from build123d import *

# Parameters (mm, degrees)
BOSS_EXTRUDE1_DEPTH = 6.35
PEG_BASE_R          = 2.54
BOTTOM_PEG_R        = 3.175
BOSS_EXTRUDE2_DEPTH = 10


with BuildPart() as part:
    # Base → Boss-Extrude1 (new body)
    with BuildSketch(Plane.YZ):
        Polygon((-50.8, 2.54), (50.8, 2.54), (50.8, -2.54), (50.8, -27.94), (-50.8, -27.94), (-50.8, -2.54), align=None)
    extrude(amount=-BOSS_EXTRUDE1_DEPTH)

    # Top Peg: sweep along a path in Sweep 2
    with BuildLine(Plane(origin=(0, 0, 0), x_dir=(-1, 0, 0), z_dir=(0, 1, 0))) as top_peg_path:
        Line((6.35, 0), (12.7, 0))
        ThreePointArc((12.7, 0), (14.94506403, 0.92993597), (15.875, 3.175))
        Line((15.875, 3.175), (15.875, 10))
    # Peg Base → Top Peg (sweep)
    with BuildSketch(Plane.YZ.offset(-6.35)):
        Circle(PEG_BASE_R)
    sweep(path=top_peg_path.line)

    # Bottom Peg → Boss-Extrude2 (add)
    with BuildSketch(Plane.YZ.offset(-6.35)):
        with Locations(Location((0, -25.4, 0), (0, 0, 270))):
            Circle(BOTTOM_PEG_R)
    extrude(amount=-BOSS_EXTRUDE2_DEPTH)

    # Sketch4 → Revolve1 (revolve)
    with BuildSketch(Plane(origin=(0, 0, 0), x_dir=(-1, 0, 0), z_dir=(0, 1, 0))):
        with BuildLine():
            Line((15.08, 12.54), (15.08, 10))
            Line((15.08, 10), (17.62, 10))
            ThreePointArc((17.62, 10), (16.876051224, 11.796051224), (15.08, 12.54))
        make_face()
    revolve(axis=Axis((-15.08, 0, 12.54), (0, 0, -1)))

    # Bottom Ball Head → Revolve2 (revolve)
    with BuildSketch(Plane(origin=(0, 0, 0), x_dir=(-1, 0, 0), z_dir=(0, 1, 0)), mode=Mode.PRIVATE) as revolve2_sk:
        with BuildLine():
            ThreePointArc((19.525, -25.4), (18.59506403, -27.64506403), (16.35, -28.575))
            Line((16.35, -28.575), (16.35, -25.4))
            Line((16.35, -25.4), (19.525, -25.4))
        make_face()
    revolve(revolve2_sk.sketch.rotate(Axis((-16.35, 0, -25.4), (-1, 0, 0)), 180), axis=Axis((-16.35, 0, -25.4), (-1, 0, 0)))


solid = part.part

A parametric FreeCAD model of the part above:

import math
import FreeCAD as App
import Part
import Sketcher

V = App.Vector
Q = App.Units.Quantity


def add_polygon(sketch, points):
    """Adds a closed chain of lines whose ends are joined by coincident constraints."""
    first, n = sketch.GeometryCount, len(points)
    for a, b in zip(points, points[1:] + points[:1]):
        sketch.addGeometry(Part.LineSegment(App.Vector(*a, 0), App.Vector(*b, 0)), False)
    for i in range(n):
        sketch.addConstraint(Sketcher.Constraint("Coincident", first + i, 2, first + (i + 1) % n, 1))

doc = App.newDocument("Part")
params = doc.addObject("Spreadsheet::Sheet", "Params")
for row, (alias, value) in enumerate([
    ("sketch1_width", "4 in"),
    ("sketch1_height", "1.2 in"),
    ("pad1_length", "0.25 in"),
    ("sketch2_diameter", "0.2 in"),
    ("sketch3_radius", "0.125 in"),
    ("sketch3_width", "0.25 in"),
    ("sketch4_diameter", "0.25 in"),
    ("pad2_length", "10 mm"),
    ("sketch5_radius", "0.1 in"),
    ("revolution_angle", "360 deg"),
    ("sketch6_radius", "0.125 in"),
    ("revolution2_angle", "360 deg"),
], start=1):
    params.set(f"A{row}", alias)
    params.set(f"B{row}", "=" + value)
    params.setAlias(f"B{row}", alias)

body = doc.addObject("PartDesign::Body", "Body")

sketch1 = body.newObject("Sketcher::SketchObject", "Sketch")
sketch1.AttachmentSupport = (doc.getObject("YZ_Plane"), [""])
sketch1.MapMode = "FlatFace"
add_polygon(sketch1, [(51, 3), (-51, 3), (-51, -28), (51, -28)])
sketch1.addConstraint([
    Sketcher.Constraint("Horizontal", 0),
    Sketcher.Constraint("Vertical", 1),
    Sketcher.Constraint("Horizontal", 2),
    Sketcher.Constraint("Vertical", 3),
    Sketcher.Constraint("DistanceX", 0, 2, 0, 1, Q("4 in")),
    Sketcher.Constraint("DistanceY", 1, 2, 1, 1, Q("1.2 in")),
    Sketcher.Constraint("DistanceX", 0, 2, -1, 1, Q("2 in")),
    Sketcher.Constraint("DistanceY", -1, 1, 0, 2, Q("0.1 in")),
])
sketch1.setExpression("Constraints[8]", "Params.sketch1_width")
sketch1.setExpression("Constraints[9]", "Params.sketch1_height")
pad1 = body.newObject("PartDesign::Pad", "Pad")
pad1.Profile = sketch1
pad1.setExpression("Length", "Params.pad1_length")
pad1.Reversed = True

sketch2 = body.newObject("Sketcher::SketchObject", "Sketch001")
sketch2.AttachmentSupport = (doc.getObject("YZ_Plane"), [""])
sketch2.MapMode = "FlatFace"
sketch2.AttachmentOffset = App.Placement(V(0, 0, -0.25 * 25.4), App.Rotation())
sketch2.addGeometry(Part.Circle(V(0, 0, 0), V(0, 0, 1), 2.5), False)
sketch2.addConstraint([
    Sketcher.Constraint("Coincident", 0, 3, -1, 1),
    Sketcher.Constraint("Diameter", 0, Q("0.2 in")),
])
sketch2.setExpression("Constraints[1]", "Params.sketch2_diameter")

sketch3 = body.newObject("Sketcher::SketchObject", "Sketch002")
sketch3.AttachmentSupport = (doc.getObject("XZ_Plane"), [""])
sketch3.MapMode = "FlatFace"
sketch3.addGeometry([
    Part.LineSegment(V(-6.3, 0, 0), V(-12.7, 0, 0)),
    Part.ArcOfCircle(Part.Circle(V(-12.7, 3.2, 0), V(0, 0, 1), 3.2), math.radians(-180), math.radians(-90)),
    Part.LineSegment(V(-15.9, 3.2, 0), V(-15.9, 10, 0)),
], False)
sketch3.addConstraint([
    Sketcher.Constraint("Tangent", 0, 2, 1, 2),
    Sketcher.Constraint("Tangent", 1, 1, 2, 1),
    Sketcher.Constraint("Horizontal", 0),
    Sketcher.Constraint("Vertical", 2),
    Sketcher.Constraint("PointOnObject", 0, 1, -1),
    Sketcher.Constraint("Radius", 1, Q("0.125 in")),
    Sketcher.Constraint("DistanceX", 0, 2, 0, 1, Q("0.25 in")),
    Sketcher.Constraint("DistanceX", 1, 3, -1, 1, Q("0.5 in")),
    Sketcher.Constraint("DistanceY", 2, 1, 2, 2, Q("6.825 mm")),
])
sketch3.setExpression("Constraints[5]", "Params.sketch3_radius")
sketch3.setExpression("Constraints[6]", "Params.sketch3_width")
doc.recompute()

additivepipe = body.newObject("PartDesign::AdditivePipe", "AdditivePipe")
additivepipe.Profile = sketch2
additivepipe.Spine = (sketch3, ["Edge1", "Edge2", "Edge3"])

sketch4 = body.newObject("Sketcher::SketchObject", "Sketch003")
sketch4.AttachmentSupport = (doc.getObject("YZ_Plane"), [""])
sketch4.MapMode = "FlatFace"
sketch4.AttachmentOffset = App.Placement(V(0, 0, -0.25 * 25.4), App.Rotation())
sketch4.addGeometry(Part.Circle(V(0, -25.4, 0), V(0, 0, 1), 3.2), False)
sketch4.addConstraint([
    Sketcher.Constraint("PointOnObject", 0, 3, -2),
    Sketcher.Constraint("Diameter", 0, Q("0.25 in")),
    Sketcher.Constraint("DistanceY", 0, 3, -1, 1, Q("1 in")),
])
sketch4.setExpression("Constraints[1]", "Params.sketch4_diameter")
pad2 = body.newObject("PartDesign::Pad", "Pad001")
pad2.Profile = sketch4
pad2.setExpression("Length", "Params.pad2_length")
pad2.Reversed = True

sketch5 = body.newObject("Sketcher::SketchObject", "Sketch004")
sketch5.AttachmentSupport = (doc.getObject("XZ_Plane"), [""])
sketch5.MapMode = "FlatFace"
sketch5.addGeometry([
    Part.LineSegment(V(-15.1, 12.5, 0), V(-15.1, 10, 0)),
    Part.LineSegment(V(-15.1, 10, 0), V(-17.6, 10, 0)),
    Part.ArcOfCircle(Part.Circle(V(-15.1, 10, 0), V(0, 0, 1), 2.5), math.radians(90), math.radians(180)),
], False)
sketch5.addGeometry(Part.LineSegment(V(-15.1, 12.5, 0), V(-15.1, 10, 0)), True)
sketch5.addConstraint([
    Sketcher.Constraint("Coincident", 0, 2, 1, 1),
    Sketcher.Constraint("Coincident", 1, 2, 2, 2),
    Sketcher.Constraint("Coincident", 2, 1, 0, 1),
    Sketcher.Constraint("Vertical", 0),
    Sketcher.Constraint("Horizontal", 1),
    Sketcher.Constraint("Vertical", 3),
    Sketcher.Constraint("Coincident", 0, 2, 2, 3),
    Sketcher.Constraint("Coincident", 3, 1, 2, 1),
    Sketcher.Constraint("Horizontal", 1, 2, 3, 2),
    Sketcher.Constraint("Radius", 2, Q("0.1 in")),
    Sketcher.Constraint("DistanceX", 2, 3, -1, 1, Q("15.08 mm")),
    Sketcher.Constraint("DistanceY", -1, 1, 2, 3, Q("10 mm")),
])
sketch5.setExpression("Constraints[9]", "Params.sketch5_radius")
revolution = body.newObject("PartDesign::Revolution", "Revolution")
revolution.Profile = sketch5
revolution.ReferenceAxis = (sketch5, ["Axis0"])
revolution.setExpression("Angle", "Params.revolution_angle")

sketch6 = body.newObject("Sketcher::SketchObject", "Sketch005")
sketch6.AttachmentSupport = (doc.getObject("XZ_Plane"), [""])
sketch6.MapMode = "FlatFace"
sketch6.addGeometry([
    Part.ArcOfCircle(Part.Circle(V(-16.3, -25.4, 0), V(0, 0, 1), 3.2), math.radians(-180), math.radians(-90)),
    Part.LineSegment(V(-19.5, -25.4, 0), V(-16.4, -25.4, 0)),
    Part.LineSegment(V(-16.4, -25.4, 0), V(-16.4, -28.6, 0)),
], False)
sketch6.addGeometry(Part.LineSegment(V(-16.3, -25.4, 0), V(-19.5, -25.4, 0)), True)
sketch6.addConstraint([
    Sketcher.Constraint("Coincident", 0, 1, 1, 1),
    Sketcher.Constraint("Coincident", 1, 2, 2, 1),
    Sketcher.Constraint("Coincident", 2, 2, 0, 2),
    Sketcher.Constraint("Horizontal", 1),
    Sketcher.Constraint("Vertical", 2),
    Sketcher.Constraint("Horizontal", 3),
    Sketcher.Constraint("Coincident", 1, 2, 0, 3),
    Sketcher.Constraint("Coincident", 3, 1, 0, 3),
    Sketcher.Constraint("Equal", 1, 3),
    Sketcher.Constraint("DistanceY", 0, 3, -1, 1, Q("1 in")),
    Sketcher.Constraint("Radius", 0, Q("0.125 in")),
    Sketcher.Constraint("DistanceX", 0, 3, -1, 1, Q("16.35 mm")),
])
sketch6.setExpression("Constraints[10]", "Params.sketch6_radius")
revolution2 = body.newObject("PartDesign::Revolution", "Revolution001")
revolution2.Profile = sketch6
revolution2.ReferenceAxis = (sketch6, ["Axis0"])
revolution2.setExpression("Angle", "Params.revolution2_angle")

doc.recompute()
